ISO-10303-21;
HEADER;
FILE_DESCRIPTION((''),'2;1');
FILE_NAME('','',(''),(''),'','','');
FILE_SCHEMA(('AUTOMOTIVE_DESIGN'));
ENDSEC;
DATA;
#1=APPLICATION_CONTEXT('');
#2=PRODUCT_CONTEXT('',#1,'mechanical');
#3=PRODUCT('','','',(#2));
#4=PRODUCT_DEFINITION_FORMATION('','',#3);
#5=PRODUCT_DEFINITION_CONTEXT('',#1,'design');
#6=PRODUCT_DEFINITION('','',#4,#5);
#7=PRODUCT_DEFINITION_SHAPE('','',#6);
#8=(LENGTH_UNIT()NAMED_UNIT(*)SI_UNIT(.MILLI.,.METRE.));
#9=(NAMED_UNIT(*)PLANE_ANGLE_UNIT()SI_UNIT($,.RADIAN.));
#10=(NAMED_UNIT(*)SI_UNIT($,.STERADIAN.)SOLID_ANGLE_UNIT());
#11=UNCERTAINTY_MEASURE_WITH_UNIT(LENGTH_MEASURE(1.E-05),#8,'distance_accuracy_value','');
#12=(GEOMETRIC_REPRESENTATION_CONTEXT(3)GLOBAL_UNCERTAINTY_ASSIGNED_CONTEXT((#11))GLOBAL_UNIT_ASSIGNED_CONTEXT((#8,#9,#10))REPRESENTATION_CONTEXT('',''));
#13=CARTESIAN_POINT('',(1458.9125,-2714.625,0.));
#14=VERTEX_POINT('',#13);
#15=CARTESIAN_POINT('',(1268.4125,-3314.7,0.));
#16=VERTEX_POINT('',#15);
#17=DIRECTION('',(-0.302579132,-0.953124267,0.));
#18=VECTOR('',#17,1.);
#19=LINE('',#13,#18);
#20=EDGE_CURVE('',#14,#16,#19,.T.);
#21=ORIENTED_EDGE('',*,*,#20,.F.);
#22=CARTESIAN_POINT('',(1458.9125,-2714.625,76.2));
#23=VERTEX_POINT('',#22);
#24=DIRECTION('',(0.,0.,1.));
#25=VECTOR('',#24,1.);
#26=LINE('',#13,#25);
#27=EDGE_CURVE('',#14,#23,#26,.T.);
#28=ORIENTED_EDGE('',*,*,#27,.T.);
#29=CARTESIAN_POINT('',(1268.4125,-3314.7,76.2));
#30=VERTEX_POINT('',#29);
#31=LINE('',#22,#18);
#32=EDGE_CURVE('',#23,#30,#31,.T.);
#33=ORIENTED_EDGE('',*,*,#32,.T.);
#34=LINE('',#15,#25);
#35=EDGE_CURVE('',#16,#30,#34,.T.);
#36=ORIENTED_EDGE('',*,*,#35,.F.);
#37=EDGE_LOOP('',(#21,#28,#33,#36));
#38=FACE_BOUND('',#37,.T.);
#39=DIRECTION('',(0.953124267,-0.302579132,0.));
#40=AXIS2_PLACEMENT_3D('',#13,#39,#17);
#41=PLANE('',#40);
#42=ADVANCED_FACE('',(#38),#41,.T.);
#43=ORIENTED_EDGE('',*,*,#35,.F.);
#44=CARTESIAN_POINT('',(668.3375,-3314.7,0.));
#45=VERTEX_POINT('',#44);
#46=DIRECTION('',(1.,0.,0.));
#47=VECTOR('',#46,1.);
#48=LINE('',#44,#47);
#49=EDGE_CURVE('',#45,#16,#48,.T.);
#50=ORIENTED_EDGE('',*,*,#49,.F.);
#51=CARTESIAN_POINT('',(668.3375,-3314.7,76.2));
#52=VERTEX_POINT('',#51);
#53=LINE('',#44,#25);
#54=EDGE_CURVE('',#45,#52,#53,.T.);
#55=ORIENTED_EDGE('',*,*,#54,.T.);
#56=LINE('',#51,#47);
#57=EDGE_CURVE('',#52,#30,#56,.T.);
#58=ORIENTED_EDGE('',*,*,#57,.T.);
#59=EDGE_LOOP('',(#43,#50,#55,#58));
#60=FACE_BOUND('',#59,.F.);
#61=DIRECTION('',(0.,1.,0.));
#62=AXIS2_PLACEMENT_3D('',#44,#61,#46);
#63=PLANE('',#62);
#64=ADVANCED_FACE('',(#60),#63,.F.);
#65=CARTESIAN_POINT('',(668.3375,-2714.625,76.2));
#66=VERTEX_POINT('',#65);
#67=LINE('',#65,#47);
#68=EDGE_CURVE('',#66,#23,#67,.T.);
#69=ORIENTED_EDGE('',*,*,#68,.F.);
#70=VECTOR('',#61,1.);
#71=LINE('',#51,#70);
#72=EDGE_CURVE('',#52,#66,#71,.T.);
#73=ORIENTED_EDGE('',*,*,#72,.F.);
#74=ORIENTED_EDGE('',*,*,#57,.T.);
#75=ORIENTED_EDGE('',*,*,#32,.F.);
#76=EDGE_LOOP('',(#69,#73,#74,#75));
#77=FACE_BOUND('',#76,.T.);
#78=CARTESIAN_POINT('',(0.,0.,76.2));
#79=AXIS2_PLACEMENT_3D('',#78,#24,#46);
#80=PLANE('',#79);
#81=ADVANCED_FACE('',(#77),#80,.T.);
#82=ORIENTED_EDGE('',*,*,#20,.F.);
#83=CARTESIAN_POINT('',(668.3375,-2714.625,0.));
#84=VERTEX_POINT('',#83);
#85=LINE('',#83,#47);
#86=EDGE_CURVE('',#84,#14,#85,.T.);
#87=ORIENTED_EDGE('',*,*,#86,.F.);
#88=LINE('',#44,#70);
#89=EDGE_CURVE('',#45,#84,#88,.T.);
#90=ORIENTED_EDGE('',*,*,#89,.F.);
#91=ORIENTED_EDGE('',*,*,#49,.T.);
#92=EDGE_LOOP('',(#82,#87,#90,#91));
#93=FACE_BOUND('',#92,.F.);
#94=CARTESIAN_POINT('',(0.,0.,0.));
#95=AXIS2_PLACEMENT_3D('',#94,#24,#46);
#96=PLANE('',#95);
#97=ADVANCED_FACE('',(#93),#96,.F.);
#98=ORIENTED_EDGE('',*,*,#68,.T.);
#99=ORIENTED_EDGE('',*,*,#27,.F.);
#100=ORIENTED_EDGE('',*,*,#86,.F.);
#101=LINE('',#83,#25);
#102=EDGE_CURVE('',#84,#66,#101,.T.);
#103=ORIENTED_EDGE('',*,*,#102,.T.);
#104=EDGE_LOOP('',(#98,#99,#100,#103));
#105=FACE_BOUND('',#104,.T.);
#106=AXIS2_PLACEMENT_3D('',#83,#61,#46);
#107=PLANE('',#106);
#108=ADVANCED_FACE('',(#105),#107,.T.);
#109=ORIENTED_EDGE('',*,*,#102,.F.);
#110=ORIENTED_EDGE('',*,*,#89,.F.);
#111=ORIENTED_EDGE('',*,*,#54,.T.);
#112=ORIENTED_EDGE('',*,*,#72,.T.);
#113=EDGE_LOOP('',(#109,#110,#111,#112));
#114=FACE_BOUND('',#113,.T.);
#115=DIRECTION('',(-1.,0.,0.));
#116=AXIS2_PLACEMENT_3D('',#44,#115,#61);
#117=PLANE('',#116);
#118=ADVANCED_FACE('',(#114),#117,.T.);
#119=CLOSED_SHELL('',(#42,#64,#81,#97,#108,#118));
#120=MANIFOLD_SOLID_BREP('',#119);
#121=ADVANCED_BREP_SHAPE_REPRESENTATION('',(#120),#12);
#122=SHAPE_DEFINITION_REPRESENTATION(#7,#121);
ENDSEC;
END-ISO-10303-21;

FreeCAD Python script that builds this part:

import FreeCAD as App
import Part
import Sketcher
from FreeCAD import Vector
Q = App.Units.Quantity

doc = App.newDocument("Part")
params = doc.addObject("Spreadsheet::Sheet", "Params")
for row, (alias, value) in enumerate([
    ("sketch1_width", "23.625 in"),
    ("sketch1_width2", "31.125 in"),
    ("pad1_length", "3 in"),
], start=1):
    params.set(f"A{row}", alias)
    params.set(f"B{row}", "=" + value)
    params.setAlias(f"B{row}", alias)

body = doc.addObject("PartDesign::Body", "Body")

# Sketch on XY plane
sketch1 = body.newObject("Sketcher::SketchObject", "Sketch")
sketch1.AttachmentSupport = (doc.getObject("XY_Plane"), [""])
sketch1.MapMode = "FlatFace"
sketch1.addGeometry([
    Part.LineSegment(Vector(668, -2715, 0), Vector(668, -3315, 0)),
    Part.LineSegment(Vector(668, -3315, 0), Vector(1268, -3315, 0)),
    Part.LineSegment(Vector(1268, -3315, 0), Vector(1459, -2715, 0)),
    Part.LineSegment(Vector(1459, -2715, 0), Vector(668, -2715, 0)),
], False)
sketch1.addConstraint([
    Sketcher.Constraint("Coincident", 0, 2, 1, 1),
    Sketcher.Constraint("Coincident", 1, 2, 2, 1),
    Sketcher.Constraint("Coincident", 2, 2, 3, 1),
    Sketcher.Constraint("Coincident", 3, 2, 0, 1),
    Sketcher.Constraint("Vertical", 0),
    Sketcher.Constraint("Horizontal", 1),
    Sketcher.Constraint("Horizontal", 3),
    Sketcher.Constraint("Equal", 1, 0),
    Sketcher.Constraint("DistanceX", 1, 1, 1, 2, Q("23.625 in")),
    Sketcher.Constraint("DistanceX", 3, 2, 3, 1, Q("31.125 in")),
    Sketcher.Constraint("DistanceY", 0, 2, -1, 1, Q("130.5 in")),
    Sketcher.Constraint("DistanceX", -1, 1, 0, 2, Q("26.3125 in")),
])
sketch1.setExpression("Constraints[8]", "Params.sketch1_width")
sketch1.setExpression("Constraints[9]", "Params.sketch1_width2")
pad1 = body.newObject("PartDesign::Pad", "Pad")
pad1.Profile = sketch1
pad1.setExpression("Length", "Params.pad1_length")

doc.recompute()
